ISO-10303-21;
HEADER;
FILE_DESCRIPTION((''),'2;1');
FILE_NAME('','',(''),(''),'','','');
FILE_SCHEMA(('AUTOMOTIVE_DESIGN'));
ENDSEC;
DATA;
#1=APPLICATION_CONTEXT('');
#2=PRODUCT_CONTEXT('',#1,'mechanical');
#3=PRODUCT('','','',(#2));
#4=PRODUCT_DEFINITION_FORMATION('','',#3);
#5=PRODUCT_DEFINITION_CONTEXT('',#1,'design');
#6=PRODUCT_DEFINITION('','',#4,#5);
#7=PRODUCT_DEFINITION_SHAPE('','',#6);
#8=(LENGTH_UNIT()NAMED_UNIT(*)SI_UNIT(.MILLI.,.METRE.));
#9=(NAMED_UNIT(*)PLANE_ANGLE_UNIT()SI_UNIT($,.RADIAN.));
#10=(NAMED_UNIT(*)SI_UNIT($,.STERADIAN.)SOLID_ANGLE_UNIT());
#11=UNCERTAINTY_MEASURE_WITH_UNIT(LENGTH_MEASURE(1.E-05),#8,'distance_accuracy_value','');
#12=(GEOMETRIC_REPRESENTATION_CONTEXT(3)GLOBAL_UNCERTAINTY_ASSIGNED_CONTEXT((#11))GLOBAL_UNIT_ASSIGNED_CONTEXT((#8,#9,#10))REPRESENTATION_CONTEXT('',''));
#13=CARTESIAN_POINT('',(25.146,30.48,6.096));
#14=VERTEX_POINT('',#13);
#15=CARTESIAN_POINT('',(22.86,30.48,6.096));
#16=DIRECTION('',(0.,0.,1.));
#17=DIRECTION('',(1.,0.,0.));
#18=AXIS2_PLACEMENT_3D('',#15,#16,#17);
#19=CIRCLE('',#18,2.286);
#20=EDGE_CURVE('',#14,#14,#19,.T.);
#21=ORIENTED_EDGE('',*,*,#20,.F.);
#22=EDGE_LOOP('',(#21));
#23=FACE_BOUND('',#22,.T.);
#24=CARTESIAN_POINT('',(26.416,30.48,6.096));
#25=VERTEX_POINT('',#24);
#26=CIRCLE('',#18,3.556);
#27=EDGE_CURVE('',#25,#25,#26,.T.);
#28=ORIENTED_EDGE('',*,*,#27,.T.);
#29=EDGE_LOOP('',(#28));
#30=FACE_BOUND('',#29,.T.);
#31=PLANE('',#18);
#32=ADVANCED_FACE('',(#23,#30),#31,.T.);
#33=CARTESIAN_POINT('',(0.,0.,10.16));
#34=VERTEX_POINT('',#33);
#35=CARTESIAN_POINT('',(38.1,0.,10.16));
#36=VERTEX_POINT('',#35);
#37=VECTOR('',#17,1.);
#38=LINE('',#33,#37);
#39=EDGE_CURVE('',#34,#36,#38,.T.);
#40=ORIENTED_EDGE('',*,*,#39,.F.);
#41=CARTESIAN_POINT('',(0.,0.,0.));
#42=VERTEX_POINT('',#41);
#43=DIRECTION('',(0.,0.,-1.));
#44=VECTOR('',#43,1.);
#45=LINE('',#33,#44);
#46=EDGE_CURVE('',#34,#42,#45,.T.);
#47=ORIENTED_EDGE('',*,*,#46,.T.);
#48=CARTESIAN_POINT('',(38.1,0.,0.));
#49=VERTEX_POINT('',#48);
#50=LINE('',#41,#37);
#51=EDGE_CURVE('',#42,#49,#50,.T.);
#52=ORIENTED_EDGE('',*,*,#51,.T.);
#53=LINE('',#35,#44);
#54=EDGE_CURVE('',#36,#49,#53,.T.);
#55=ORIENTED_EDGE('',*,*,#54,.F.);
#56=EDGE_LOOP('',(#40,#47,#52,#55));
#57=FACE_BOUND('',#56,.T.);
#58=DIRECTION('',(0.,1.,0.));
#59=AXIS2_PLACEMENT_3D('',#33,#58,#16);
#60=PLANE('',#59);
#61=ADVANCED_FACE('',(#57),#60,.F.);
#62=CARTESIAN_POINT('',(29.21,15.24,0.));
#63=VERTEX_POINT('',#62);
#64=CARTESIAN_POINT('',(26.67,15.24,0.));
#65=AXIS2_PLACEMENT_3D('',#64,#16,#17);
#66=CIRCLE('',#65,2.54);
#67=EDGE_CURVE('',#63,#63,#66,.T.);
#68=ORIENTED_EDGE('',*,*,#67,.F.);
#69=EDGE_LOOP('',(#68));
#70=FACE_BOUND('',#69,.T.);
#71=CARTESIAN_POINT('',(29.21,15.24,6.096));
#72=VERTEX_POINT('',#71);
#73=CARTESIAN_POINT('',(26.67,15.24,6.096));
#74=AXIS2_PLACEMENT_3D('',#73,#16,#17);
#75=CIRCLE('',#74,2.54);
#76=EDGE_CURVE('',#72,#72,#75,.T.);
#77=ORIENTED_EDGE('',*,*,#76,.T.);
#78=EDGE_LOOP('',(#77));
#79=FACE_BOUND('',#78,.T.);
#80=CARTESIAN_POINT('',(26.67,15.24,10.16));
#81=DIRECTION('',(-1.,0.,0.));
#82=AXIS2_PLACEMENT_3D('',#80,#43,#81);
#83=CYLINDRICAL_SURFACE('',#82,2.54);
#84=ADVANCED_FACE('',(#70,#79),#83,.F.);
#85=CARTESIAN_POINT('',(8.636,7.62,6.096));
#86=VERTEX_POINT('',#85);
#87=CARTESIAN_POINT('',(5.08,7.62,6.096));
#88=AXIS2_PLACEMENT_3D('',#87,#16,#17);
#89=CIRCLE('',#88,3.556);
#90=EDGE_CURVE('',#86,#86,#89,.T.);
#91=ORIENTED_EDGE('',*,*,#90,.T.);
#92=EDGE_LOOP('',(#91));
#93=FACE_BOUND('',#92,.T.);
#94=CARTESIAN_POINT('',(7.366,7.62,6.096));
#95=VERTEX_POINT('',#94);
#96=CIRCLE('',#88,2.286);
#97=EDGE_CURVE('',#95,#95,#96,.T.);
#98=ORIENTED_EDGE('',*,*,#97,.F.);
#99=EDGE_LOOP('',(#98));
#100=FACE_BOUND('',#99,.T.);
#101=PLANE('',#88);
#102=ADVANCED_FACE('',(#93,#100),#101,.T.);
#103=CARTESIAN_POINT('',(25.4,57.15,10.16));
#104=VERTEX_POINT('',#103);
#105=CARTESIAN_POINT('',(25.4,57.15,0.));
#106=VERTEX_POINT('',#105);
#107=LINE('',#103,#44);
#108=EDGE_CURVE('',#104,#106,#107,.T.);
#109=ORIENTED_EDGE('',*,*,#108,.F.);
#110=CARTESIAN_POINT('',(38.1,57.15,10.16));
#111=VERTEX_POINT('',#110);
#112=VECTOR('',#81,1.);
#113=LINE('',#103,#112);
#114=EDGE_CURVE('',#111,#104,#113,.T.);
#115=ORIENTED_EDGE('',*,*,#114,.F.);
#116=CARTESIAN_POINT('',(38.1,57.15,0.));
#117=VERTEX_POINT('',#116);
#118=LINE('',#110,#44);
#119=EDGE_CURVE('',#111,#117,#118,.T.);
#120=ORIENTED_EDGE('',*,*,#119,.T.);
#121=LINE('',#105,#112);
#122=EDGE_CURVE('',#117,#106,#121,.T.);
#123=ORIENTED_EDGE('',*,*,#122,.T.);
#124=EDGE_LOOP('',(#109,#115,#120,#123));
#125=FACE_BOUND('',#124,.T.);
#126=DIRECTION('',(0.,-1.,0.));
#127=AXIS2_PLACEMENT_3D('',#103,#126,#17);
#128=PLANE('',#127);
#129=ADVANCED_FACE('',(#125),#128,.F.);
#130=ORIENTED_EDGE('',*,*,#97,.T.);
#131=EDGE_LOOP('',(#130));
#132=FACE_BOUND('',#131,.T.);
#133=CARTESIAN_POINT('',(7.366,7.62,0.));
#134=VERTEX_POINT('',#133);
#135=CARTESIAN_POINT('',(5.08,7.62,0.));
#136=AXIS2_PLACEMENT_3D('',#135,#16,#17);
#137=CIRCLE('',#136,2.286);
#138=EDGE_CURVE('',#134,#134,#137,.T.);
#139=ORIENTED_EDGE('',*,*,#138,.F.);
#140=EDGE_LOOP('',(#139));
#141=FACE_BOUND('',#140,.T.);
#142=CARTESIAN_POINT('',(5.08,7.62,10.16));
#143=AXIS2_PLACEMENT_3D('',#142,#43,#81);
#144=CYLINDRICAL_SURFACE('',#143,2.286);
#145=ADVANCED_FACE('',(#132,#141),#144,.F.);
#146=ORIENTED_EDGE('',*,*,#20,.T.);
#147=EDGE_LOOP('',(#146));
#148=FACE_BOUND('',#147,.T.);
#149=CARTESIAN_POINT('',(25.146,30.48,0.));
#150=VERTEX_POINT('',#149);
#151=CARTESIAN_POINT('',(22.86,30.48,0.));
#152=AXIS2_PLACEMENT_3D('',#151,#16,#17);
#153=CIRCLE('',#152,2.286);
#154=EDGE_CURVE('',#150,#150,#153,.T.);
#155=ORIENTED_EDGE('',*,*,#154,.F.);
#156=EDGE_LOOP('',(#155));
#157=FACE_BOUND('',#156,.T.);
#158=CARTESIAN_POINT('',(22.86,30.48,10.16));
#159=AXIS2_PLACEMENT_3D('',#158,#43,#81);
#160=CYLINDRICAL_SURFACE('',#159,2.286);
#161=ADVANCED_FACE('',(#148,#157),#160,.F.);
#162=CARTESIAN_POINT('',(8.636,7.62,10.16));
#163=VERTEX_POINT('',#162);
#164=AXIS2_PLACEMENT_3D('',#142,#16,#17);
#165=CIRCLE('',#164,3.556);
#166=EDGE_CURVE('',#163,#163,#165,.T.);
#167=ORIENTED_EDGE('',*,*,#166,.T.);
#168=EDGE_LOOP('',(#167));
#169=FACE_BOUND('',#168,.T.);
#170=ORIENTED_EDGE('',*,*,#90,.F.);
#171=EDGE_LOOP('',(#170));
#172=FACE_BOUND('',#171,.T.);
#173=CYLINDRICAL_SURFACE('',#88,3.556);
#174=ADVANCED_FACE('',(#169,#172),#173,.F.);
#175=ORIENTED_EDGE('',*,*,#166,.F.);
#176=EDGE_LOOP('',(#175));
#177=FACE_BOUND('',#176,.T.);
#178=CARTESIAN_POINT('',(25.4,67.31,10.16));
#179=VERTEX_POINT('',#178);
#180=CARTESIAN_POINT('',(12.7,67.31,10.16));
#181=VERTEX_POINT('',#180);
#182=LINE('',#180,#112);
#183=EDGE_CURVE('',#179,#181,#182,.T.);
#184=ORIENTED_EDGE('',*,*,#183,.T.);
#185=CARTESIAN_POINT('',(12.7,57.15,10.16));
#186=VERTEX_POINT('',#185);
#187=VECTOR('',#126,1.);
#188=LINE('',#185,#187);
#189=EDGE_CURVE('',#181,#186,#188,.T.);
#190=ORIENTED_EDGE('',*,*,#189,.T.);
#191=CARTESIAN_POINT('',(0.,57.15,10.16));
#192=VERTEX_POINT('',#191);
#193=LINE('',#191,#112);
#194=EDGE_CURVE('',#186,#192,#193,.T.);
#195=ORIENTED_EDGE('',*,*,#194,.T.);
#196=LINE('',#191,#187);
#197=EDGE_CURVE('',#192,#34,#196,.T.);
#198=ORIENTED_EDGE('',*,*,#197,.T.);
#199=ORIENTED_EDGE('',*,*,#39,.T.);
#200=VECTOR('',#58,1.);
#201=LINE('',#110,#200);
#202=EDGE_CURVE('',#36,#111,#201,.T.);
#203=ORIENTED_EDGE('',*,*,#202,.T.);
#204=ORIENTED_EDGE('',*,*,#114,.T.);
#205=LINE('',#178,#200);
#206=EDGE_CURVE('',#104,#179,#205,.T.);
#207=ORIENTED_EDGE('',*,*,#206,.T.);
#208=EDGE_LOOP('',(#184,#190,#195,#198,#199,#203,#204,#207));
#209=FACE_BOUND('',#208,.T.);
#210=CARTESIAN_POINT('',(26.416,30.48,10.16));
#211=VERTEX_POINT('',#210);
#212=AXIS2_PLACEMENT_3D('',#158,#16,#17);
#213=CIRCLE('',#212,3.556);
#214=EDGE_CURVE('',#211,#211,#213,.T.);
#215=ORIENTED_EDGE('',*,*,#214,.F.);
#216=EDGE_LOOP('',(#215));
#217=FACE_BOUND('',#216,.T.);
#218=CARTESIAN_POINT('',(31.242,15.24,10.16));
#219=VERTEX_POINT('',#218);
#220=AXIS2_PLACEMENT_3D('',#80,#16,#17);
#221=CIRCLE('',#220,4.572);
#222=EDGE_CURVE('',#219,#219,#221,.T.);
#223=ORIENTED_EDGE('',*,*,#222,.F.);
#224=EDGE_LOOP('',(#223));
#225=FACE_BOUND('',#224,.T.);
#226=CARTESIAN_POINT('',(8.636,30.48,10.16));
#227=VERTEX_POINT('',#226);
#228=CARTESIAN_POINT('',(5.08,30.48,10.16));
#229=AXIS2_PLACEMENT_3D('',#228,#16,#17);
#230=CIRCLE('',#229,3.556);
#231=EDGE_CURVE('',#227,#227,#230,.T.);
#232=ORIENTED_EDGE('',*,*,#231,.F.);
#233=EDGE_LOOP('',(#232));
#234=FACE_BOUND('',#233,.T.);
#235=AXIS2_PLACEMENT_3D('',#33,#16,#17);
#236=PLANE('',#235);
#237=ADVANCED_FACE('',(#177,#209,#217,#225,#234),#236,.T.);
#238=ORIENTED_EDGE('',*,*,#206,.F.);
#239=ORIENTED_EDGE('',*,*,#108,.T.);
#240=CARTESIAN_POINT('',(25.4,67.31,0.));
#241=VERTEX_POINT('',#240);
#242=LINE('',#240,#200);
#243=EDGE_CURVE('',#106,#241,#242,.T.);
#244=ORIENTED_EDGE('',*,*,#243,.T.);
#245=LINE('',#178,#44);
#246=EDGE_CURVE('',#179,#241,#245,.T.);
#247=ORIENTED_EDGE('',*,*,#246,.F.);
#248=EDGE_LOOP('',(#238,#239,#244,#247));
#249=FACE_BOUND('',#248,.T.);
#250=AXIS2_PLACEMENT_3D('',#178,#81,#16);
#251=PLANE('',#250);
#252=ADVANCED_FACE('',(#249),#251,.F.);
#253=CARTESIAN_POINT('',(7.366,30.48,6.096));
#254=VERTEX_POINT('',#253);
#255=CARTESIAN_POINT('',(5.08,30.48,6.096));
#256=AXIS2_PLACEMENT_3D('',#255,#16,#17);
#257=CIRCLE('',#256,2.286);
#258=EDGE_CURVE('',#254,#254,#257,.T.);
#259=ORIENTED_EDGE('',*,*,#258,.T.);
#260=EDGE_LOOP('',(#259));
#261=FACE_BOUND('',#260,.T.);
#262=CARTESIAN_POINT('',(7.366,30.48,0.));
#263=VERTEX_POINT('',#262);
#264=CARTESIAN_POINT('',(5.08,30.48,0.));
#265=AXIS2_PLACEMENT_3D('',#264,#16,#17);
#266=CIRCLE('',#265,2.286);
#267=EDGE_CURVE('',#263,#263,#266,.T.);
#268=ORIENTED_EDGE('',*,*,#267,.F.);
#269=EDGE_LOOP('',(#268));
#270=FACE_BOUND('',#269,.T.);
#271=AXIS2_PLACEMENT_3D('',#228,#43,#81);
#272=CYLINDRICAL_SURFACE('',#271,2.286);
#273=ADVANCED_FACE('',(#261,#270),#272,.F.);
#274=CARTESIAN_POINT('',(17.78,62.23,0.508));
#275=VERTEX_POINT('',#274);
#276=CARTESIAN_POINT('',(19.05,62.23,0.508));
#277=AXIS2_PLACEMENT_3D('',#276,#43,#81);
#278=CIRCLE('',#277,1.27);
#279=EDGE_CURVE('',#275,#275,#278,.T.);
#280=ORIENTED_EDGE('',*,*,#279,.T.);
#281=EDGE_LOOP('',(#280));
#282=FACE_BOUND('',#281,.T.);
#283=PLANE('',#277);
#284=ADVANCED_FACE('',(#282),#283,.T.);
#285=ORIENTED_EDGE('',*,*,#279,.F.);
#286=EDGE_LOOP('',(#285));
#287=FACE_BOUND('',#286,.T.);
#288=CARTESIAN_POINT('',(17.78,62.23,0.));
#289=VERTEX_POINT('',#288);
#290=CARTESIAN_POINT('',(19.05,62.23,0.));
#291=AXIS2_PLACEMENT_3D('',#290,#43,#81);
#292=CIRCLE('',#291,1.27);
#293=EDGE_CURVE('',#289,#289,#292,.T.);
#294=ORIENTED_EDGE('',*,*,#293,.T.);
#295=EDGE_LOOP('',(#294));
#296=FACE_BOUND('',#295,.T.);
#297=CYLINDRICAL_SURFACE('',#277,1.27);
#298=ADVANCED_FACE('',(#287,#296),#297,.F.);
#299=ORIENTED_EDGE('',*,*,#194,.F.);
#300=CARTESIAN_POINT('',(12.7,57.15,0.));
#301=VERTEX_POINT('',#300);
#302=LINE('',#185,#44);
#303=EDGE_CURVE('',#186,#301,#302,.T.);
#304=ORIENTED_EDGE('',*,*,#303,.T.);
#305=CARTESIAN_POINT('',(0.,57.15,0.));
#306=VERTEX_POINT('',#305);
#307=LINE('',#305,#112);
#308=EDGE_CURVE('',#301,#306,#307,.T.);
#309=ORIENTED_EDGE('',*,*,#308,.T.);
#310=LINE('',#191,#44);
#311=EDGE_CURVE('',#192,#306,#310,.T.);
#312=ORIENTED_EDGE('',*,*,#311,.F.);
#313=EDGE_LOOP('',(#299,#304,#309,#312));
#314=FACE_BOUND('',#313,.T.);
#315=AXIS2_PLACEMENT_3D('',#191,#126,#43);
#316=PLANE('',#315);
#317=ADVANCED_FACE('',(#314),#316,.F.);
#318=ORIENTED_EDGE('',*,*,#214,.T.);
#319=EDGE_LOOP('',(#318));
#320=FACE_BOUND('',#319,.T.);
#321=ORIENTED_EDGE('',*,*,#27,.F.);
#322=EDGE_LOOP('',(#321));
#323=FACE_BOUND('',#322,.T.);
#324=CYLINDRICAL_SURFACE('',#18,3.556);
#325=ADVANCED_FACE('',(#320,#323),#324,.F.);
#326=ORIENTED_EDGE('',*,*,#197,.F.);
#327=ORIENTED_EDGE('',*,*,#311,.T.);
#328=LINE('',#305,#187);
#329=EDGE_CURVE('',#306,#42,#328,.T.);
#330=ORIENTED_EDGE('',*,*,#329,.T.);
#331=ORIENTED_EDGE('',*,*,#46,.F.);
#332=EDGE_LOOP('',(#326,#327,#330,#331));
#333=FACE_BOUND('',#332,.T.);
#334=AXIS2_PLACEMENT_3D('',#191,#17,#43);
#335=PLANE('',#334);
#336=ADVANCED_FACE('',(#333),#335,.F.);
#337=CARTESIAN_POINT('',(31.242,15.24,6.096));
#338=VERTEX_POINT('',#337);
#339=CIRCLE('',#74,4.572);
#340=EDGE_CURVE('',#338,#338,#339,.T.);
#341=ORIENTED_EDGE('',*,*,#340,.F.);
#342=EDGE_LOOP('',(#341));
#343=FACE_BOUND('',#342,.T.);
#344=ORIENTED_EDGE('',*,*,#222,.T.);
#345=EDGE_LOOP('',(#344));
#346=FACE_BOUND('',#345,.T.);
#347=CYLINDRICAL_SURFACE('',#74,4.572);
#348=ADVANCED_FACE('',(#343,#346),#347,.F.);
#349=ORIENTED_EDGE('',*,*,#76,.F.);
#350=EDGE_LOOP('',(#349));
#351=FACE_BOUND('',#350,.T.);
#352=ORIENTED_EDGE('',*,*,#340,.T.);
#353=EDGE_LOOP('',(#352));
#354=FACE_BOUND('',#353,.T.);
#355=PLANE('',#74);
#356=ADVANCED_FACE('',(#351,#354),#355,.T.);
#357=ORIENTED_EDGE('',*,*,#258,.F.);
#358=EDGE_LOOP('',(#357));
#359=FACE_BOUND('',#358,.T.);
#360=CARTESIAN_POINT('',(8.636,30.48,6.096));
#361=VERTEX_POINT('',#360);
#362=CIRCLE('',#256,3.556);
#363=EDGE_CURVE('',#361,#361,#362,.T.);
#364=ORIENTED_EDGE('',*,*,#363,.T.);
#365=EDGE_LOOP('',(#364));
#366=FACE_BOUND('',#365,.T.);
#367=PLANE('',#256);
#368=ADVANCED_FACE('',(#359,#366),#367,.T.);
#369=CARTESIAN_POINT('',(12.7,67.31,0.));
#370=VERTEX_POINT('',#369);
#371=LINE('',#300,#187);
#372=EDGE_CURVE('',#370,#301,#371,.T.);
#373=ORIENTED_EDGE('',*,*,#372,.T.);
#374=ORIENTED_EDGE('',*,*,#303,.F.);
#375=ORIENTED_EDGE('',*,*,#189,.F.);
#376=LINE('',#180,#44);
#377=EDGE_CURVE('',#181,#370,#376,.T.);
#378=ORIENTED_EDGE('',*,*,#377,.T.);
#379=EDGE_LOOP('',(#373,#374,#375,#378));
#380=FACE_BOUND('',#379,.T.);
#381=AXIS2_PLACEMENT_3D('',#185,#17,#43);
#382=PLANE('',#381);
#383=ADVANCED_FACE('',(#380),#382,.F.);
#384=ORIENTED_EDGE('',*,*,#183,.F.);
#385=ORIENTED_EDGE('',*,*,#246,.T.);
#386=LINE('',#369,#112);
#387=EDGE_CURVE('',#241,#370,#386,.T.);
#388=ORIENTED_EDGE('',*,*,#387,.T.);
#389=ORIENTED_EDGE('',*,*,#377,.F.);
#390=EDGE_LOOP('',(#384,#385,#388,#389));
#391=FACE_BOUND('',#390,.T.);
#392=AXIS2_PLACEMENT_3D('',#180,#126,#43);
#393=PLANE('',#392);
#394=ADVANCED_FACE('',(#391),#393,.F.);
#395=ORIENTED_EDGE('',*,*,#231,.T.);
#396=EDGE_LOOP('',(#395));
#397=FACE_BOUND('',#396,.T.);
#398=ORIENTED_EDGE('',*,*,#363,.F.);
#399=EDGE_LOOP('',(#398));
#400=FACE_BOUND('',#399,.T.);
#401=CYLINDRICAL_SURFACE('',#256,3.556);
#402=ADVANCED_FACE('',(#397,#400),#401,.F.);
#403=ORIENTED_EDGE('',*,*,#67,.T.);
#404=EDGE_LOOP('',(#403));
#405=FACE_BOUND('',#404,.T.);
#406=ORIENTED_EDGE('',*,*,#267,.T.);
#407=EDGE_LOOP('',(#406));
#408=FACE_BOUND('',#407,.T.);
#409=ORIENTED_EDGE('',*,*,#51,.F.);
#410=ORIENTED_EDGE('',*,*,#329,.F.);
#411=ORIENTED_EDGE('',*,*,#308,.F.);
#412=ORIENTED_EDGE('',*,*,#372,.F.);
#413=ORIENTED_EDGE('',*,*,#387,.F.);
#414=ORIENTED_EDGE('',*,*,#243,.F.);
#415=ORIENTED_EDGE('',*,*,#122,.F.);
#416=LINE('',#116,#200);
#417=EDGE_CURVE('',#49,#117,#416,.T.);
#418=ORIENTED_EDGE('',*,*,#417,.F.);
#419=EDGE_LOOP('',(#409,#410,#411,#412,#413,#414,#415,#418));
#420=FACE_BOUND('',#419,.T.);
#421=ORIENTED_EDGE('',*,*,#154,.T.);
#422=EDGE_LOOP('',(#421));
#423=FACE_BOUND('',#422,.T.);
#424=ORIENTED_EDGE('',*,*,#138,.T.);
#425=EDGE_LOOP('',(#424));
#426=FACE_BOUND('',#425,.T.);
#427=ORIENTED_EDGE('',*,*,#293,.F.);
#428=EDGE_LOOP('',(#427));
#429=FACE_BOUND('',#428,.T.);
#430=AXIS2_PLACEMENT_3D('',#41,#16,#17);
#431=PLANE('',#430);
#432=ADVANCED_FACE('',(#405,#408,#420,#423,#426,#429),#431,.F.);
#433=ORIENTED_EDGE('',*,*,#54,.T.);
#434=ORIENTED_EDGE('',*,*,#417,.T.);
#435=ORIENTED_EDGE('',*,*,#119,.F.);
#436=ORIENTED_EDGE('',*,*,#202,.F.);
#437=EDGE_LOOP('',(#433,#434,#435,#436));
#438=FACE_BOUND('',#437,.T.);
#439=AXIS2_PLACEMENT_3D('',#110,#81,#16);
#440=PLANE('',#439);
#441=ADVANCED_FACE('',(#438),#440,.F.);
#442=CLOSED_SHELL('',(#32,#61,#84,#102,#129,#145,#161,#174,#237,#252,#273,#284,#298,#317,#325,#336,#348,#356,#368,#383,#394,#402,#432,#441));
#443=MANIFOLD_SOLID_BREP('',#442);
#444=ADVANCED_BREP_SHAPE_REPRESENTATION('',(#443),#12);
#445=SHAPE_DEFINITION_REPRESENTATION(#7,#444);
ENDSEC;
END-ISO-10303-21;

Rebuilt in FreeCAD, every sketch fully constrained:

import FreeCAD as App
import Part
import Sketcher

V = App.Vector
Q = App.Units.Quantity


def add_polygon(sketch, points):
    """Adds a closed chain of lines whose ends are joined by coincident constraints."""
    first, n = sketch.GeometryCount, len(points)
    for a, b in zip(points, points[1:] + points[:1]):
        sketch.addGeometry(Part.LineSegment(App.Vector(*a, 0), App.Vector(*b, 0)), False)
    for i in range(n):
        sketch.addConstraint(Sketcher.Constraint("Coincident", first + i, 2, first + (i + 1) % n, 1))

doc = App.newDocument("Part")
body = doc.addObject("PartDesign::Body", "Body")

# Sketch on XY plane
sketch1 = body.newObject("Sketcher::SketchObject", "Sketch")
sketch1.AttachmentSupport = (doc.getObject("XY_Plane"), [""])
sketch1.MapMode = "FlatFace"
add_polygon(sketch1, [(12.7, 57.1), (0, 57.1), (0, 0), (38.1, 0), (38.1, 57.1), (25.4, 57.1), (25.4, 67.3), (12.7, 67.3)])  # lines 0-7
sketch1.addGeometry(Part.Circle(V(26.7, 15.2, 0), V(0, 0, 1), 2.5), False)  # 8
sketch1.addGeometry(Part.Circle(V(5.1, 7.6, 0), V(0, 0, 1), 2.3), False)  # 9
sketch1.addGeometry(Part.Circle(V(22.9, 30.5, 0), V(0, 0, 1), 2.3), False)  # 10
sketch1.addGeometry(Part.Circle(V(5.1, 30.5, 0), V(0, 0, 1), 2.3), False)  # 11
sketch1.addConstraint([
    Sketcher.Constraint("Horizontal", 0),
    Sketcher.Constraint("Vertical", 1),
    Sketcher.Constraint("Horizontal", 2),
    Sketcher.Constraint("Vertical", 3),
    Sketcher.Constraint("Horizontal", 4),
    Sketcher.Constraint("Vertical", 5),
    Sketcher.Constraint("Horizontal", 6),
    Sketcher.Constraint("Vertical", 7),
    Sketcher.Constraint("Coincident", 1, 2, -1, 1),
    Sketcher.Constraint("Equal", 9, 10),
    Sketcher.Constraint("Equal", 10, 11),
    Sketcher.Constraint("Horizontal", 10, 3, 11, 3),
    Sketcher.Constraint("Horizontal", 0, 2, 3, 2),
    Sketcher.Constraint("Vertical", 9, 3, 11, 3),
    Sketcher.Constraint("Equal", 0, 4),
    Sketcher.Constraint("Equal", 4, 6),
    Sketcher.Constraint("Diameter", 8, Q("0.2 in")),
    Sketcher.Constraint("Diameter", 9, Q("0.18 in")),
    Sketcher.Constraint("DistanceX", 0, 2, 0, 1, Q("0.5 in")),
    Sketcher.Constraint("DistanceY", 5, 1, 5, 2, Q("0.4 in")),
    Sketcher.Constraint("DistanceY", 1, 2, 1, 1, Q("2.25 in")),
    Sketcher.Constraint("DistanceY", -1, 1, 8, 3, Q("0.6 in")),
    Sketcher.Constraint("DistanceX", -1, 1, 9, 3, Q("0.2 in")),
    Sketcher.Constraint("DistanceY", -1, 1, 9, 3, Q("0.3 in")),
    Sketcher.Constraint("DistanceX", -1, 1, 10, 3, Q("0.9 in")),
    Sketcher.Constraint("DistanceY", -1, 1, 10, 3, Q("1.2 in")),
    Sketcher.Constraint("DistanceX", -1, 1, 8, 3, Q("1.05 in")),
])
pad1 = body.newObject("PartDesign::Pad", "Pad")
pad1.Profile = sketch1
pad1.Length = Q("0.4 in")

# Sketch on XY plane
sketch2 = body.newObject("Sketcher::SketchObject", "Sketch001")
sketch2.AttachmentSupport = (doc.getObject("XY_Plane"), [""])
sketch2.MapMode = "FlatFace"
sketch2.AttachmentOffset = App.Placement(V(0, 0, 0.4 * 25.4), App.Rotation())
sketch2.addGeometry([
    Part.Circle(V(5.1, 30.5, 0), V(0, 0, 1), 3.6),
    Part.Circle(V(22.9, 30.5, 0), V(0, 0, 1), 3.6),
    Part.Circle(V(5.1, 7.6, 0), V(0, 0, 1), 3.6),
    Part.Circle(V(26.7, 15.2, 0), V(0, 0, 1), 4.6),
], False)
sketch2.addConstraint([
    Sketcher.Constraint("Equal", 0, 1),
    Sketcher.Constraint("Equal", 1, 2),
    Sketcher.Constraint("Horizontal", 0, 3, 1, 3),
    Sketcher.Constraint("Vertical", 0, 3, 2, 3),
    Sketcher.Constraint("Diameter", 0, Q("0.28 in")),
    Sketcher.Constraint("Diameter", 3, Q("0.36 in")),
    Sketcher.Constraint("DistanceX", -1, 1, 0, 3, Q("0.2 in")),
    Sketcher.Constraint("DistanceY", -1, 1, 0, 3, Q("1.2 in")),
    Sketcher.Constraint("DistanceX", -1, 1, 1, 3, Q("0.9 in")),
    Sketcher.Constraint("DistanceY", -1, 1, 2, 3, Q("0.3 in")),
    Sketcher.Constraint("DistanceY", -1, 1, 3, 3, Q("0.6 in")),
    Sketcher.Constraint("DistanceX", -1, 1, 3, 3, Q("1.05 in")),
])
pocket1 = body.newObject("PartDesign::Pocket", "Pocket")
pocket1.Profile = sketch2
pocket1.Length = Q("0.16 in")

# Sketch on XY plane
sketch3 = body.newObject("Sketcher::SketchObject", "Sketch002")
sketch3.AttachmentSupport = (doc.getObject("XY_Plane"), [""])
sketch3.MapMode = "FlatFace"
sketch3.addGeometry(Part.Circle(V(19.1, 62.2, 0), V(0, 0, 1), 1.3), False)
sketch3.addConstraint([
    Sketcher.Constraint("Diameter", 0, Q("0.1 in")),
    Sketcher.Constraint("DistanceX", -1, 1, 0, 3, Q("0.75 in")),
    Sketcher.Constraint("DistanceY", -1, 1, 0, 3, Q("2.45 in")),
])
pocket2 = body.newObject("PartDesign::Pocket", "Pocket001")
pocket2.Profile = sketch3
pocket2.Length = Q("0.02 in")
pocket2.Reversed = True

doc.recompute()
